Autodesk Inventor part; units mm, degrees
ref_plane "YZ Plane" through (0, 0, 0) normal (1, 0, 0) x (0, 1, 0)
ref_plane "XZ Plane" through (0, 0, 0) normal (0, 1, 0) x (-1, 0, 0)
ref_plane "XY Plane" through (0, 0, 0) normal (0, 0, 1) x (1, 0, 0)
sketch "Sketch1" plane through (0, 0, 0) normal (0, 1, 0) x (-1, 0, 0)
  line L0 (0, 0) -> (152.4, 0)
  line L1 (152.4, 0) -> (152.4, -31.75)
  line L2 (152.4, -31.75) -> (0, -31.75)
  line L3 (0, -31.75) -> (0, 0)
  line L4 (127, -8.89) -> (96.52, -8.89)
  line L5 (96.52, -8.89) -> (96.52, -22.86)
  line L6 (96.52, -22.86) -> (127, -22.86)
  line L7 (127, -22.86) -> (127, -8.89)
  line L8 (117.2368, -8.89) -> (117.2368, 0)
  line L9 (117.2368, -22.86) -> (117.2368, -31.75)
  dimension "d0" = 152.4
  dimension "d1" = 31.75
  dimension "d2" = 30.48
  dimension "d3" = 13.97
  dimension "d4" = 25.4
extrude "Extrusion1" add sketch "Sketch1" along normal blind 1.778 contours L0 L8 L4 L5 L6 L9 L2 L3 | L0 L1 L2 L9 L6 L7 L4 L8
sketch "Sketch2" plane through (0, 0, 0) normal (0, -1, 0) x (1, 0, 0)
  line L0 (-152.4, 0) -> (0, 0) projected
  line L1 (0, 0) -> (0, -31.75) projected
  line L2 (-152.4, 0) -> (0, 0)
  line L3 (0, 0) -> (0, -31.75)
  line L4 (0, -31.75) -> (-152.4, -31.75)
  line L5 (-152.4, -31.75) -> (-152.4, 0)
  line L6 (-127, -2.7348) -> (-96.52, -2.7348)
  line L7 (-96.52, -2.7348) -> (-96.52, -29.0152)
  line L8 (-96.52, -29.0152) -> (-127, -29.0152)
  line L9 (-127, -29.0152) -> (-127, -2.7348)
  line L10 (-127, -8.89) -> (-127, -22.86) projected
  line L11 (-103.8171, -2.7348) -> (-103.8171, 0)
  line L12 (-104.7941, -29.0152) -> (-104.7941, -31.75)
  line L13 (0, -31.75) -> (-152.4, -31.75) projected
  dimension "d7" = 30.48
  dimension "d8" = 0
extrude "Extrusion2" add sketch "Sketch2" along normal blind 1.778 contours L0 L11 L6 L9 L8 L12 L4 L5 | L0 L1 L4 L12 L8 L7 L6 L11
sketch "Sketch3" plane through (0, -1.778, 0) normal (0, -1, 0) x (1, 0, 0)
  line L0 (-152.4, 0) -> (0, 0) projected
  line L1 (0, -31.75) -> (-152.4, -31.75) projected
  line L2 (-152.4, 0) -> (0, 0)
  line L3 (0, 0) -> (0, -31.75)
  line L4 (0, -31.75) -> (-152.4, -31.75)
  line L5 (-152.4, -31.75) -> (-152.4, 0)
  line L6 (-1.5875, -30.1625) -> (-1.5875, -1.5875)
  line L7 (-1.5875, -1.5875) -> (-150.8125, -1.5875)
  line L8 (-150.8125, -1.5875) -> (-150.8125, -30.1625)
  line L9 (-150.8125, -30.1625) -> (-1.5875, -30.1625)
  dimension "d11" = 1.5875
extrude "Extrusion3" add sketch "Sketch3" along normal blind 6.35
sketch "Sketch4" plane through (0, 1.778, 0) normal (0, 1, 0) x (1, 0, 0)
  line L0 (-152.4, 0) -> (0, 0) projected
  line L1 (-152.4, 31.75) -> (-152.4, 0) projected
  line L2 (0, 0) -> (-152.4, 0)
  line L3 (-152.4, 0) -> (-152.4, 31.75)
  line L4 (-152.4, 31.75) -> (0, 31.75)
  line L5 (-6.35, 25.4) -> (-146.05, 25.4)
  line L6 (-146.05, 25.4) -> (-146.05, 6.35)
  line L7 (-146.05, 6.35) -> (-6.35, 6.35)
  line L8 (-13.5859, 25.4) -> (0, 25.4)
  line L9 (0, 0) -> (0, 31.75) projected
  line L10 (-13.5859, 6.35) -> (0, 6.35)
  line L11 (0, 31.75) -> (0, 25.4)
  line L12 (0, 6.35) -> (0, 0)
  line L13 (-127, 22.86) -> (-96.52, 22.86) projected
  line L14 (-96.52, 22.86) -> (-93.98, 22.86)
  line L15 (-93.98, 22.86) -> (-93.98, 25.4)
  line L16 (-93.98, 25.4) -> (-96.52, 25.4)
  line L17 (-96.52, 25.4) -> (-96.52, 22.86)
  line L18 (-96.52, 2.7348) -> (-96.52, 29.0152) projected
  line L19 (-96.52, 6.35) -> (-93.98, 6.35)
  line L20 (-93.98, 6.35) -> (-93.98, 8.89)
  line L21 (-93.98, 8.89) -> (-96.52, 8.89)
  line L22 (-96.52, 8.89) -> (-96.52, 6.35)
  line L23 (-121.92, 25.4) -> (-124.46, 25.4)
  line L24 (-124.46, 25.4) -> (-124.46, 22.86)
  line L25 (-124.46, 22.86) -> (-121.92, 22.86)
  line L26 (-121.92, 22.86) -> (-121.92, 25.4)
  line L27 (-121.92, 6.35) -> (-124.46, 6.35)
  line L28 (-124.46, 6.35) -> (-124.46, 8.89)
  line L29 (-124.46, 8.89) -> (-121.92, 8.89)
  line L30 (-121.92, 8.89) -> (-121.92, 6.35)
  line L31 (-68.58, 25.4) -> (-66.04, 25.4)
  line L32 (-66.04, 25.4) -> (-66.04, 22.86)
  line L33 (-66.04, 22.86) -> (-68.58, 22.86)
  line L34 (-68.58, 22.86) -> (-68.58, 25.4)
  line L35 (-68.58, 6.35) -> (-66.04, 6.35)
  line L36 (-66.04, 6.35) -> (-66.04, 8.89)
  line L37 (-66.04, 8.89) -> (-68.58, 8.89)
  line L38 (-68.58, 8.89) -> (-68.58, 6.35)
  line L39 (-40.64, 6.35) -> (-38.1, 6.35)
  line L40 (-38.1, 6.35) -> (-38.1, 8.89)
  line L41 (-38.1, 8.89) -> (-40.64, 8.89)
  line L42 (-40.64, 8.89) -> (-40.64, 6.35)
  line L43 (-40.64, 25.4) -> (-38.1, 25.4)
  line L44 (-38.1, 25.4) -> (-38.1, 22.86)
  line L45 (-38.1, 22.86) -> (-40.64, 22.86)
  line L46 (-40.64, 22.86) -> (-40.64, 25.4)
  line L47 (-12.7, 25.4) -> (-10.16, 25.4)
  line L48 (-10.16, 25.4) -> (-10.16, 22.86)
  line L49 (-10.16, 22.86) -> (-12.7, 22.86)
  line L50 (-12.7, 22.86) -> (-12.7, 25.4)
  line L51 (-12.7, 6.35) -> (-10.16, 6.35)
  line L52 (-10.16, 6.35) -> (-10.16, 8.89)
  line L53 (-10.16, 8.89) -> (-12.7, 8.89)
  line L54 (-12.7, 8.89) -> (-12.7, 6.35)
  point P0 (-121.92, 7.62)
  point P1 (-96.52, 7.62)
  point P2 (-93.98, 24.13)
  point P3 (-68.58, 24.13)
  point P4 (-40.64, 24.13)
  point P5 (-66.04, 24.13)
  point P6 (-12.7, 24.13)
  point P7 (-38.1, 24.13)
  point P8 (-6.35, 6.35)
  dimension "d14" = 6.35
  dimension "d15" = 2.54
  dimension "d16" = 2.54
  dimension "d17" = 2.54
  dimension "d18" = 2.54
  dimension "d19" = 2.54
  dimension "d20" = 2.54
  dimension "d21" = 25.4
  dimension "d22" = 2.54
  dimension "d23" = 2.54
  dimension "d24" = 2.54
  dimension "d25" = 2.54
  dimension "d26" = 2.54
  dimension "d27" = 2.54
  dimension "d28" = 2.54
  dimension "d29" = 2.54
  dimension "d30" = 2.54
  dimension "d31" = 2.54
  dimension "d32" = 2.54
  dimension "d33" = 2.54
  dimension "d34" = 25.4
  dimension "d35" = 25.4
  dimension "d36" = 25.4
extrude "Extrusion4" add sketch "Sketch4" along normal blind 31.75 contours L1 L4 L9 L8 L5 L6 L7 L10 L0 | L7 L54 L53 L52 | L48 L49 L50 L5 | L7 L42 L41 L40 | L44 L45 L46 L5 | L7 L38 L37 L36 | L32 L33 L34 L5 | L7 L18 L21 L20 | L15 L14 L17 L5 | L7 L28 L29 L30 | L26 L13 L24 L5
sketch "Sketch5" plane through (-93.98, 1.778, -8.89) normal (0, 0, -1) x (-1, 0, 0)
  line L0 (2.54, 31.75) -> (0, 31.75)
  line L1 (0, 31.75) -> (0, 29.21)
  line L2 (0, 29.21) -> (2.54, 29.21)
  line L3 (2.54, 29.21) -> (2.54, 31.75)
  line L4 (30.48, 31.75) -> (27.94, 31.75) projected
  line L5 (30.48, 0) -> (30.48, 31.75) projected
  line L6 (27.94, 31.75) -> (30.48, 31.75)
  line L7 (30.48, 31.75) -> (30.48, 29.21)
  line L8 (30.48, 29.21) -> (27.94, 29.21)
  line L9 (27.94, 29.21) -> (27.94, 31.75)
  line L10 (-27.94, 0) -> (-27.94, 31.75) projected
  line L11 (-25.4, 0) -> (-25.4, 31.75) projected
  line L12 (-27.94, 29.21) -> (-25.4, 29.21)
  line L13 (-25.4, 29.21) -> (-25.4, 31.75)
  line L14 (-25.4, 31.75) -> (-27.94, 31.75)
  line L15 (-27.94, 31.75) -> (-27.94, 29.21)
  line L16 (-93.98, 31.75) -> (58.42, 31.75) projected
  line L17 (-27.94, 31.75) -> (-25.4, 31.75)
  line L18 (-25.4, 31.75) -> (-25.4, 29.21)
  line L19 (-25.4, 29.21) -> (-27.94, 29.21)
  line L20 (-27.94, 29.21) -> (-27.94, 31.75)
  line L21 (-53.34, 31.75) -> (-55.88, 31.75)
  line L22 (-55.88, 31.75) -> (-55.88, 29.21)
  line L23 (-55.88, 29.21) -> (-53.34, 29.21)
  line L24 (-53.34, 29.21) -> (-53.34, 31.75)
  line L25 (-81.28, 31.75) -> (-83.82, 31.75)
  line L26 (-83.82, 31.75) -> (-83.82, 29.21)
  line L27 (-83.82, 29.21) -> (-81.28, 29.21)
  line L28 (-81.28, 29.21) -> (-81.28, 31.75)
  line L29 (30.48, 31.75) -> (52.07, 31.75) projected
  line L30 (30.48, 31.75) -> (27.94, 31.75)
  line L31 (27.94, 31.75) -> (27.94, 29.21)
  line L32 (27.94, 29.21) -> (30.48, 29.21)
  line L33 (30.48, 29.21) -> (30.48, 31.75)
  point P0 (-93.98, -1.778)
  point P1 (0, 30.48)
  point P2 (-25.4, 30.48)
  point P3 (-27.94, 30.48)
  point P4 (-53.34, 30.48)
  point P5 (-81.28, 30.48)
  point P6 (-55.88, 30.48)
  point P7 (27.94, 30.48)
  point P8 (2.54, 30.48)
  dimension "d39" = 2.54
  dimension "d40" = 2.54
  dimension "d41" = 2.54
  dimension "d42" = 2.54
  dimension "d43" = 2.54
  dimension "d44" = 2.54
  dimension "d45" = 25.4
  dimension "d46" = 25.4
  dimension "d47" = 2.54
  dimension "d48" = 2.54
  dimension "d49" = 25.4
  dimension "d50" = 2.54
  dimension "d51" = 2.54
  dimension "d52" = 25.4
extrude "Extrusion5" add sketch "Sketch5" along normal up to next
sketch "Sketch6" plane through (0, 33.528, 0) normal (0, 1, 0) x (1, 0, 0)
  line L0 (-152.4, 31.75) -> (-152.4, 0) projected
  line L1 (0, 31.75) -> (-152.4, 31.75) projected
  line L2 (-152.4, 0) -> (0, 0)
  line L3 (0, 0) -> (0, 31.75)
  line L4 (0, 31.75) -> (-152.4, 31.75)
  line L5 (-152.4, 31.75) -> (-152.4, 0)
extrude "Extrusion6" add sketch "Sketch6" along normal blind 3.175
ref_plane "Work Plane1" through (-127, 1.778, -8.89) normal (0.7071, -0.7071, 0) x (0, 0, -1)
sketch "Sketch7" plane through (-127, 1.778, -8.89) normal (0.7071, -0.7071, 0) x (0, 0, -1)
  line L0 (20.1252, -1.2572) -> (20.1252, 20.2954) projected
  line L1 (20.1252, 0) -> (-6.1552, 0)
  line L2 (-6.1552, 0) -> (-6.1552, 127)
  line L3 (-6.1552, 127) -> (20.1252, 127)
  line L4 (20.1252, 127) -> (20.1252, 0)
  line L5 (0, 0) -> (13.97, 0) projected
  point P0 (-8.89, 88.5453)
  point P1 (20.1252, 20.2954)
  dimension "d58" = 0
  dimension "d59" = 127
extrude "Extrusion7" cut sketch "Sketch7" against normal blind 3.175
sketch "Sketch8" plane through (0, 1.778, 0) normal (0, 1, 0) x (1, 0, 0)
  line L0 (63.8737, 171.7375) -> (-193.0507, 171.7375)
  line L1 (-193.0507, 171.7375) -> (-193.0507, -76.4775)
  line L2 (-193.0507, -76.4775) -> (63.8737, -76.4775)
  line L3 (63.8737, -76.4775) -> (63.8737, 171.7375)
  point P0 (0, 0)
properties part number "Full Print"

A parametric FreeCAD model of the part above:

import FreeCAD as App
import Part
import Sketcher

V = App.Vector
Q = App.Units.Quantity

doc = App.newDocument("Part")
params = doc.addObject("Spreadsheet::Sheet", "Params")
for row, (alias, value) in enumerate([
    ("sketch1_width", "6 in"),
    ("sketch1_width2", "1.2 in"),
    ("sketch1_height", "1.25 in"),
    ("sketch1_height2", "0.55 in"),
    ("pad1_length", "0.07 in"),
    ("sketch2_width", "1.2 in"),
    ("sketch2_width2", "6 in"),
    ("sketch2_height", "1.25 in"),
    ("pad2_length", "0.07 in"),
    ("sketch3_width", "6 in"),
    ("sketch3_height", "1.25 in"),
    ("pad3_length", "0.25 in"),
    ("sketch4_width", "1 in"),
    ("sketch4_width2", "0.1 in"),
    ("sketch4_height", "0.25 in"),
    ("sketch4_width3", "6 in"),
    ("sketch4_width4", "0.4 in"),
    ("pad4_length", "1.25 in"),
    ("sketch5_width", "0.1 in"),
    ("sketch6_width", "6 in"),
    ("sketch6_height", "1.25 in"),
    ("pad6_length", "0.125 in"),
    ("sketch7_height", "5 in"),
    ("pocket1_length", "0.125 in"),
], start=1):
    params.set(f"A{row}", alias)
    params.set(f"B{row}", "=" + value)
    params.setAlias(f"B{row}", alias)

body = doc.addObject("PartDesign::Body", "Body")

# Sketch on XZ plane
sketch1 = doc.addObject("Sketcher::SketchObject", "Sketch")
body.addObject(sketch1)
sketch1.AttachmentSupport = (doc.XZ_Plane, [""])
sketch1.MapMode = "FlatFace"
sketch1.addGeometry([
    Part.LineSegment(V(0, 0, 0), V(0, -31.75, 0)),  # 0
    Part.LineSegment(V(0, -31.75, 0), V(-152.4, -31.75, 0)),  # 1
    Part.LineSegment(V(-152.4, -31.75, 0), V(-152.4, 0, 0)),  # 2
    Part.LineSegment(V(-152.4, 0, 0), V(0, 0, 0)),  # 3
    Part.LineSegment(V(-96.52, -8.89, 0), V(-127, -8.89, 0)),  # 4
    Part.LineSegment(V(-127, -8.89, 0), V(-127, -22.86, 0)),  # 5
    Part.LineSegment(V(-127, -22.86, 0), V(-96.52, -22.86, 0)),  # 6
    Part.LineSegment(V(-96.52, -22.86, 0), V(-96.52, -8.89, 0)),  # 7
], False)
sketch1.addConstraint([
    Sketcher.Constraint("Coincident", 0, 2, 1, 1),
    Sketcher.Constraint("Coincident", 1, 2, 2, 1),
    Sketcher.Constraint("Coincident", 2, 2, 3, 1),
    Sketcher.Constraint("Coincident", 3, 2, 0, 1),
    Sketcher.Constraint("Coincident", 4, 2, 5, 1),
    Sketcher.Constraint("Coincident", 5, 2, 6, 1),
    Sketcher.Constraint("Coincident", 6, 2, 7, 1),
    Sketcher.Constraint("Coincident", 7, 2, 4, 1),
    Sketcher.Constraint("Vertical", 0),
    Sketcher.Constraint("Horizontal", 1),
    Sketcher.Constraint("Vertical", 2),
    Sketcher.Constraint("Horizontal", 3),
    Sketcher.Constraint("Horizontal", 4),
    Sketcher.Constraint("Vertical", 5),
    Sketcher.Constraint("Horizontal", 6),
    Sketcher.Constraint("Vertical", 7),
    Sketcher.Constraint("Coincident", 3, 2, -1, 1),
    Sketcher.Constraint("DistanceX", 1, 2, 1, 1, Q("6 in")),
    Sketcher.Constraint("DistanceX", 4, 2, 4, 1, Q("1.2 in")),
    Sketcher.Constraint("DistanceX", 2, 2, 4, 2, Q("1 in")),
    Sketcher.Constraint("DistanceY", 0, 2, 0, 1, Q("1.25 in")),
    Sketcher.Constraint("DistanceY", 5, 2, 5, 1, Q("0.55 in")),
    Sketcher.Constraint("DistanceY", 5, 2, -1, 1, Q("0.9 in")),
])
sketch1.setExpression("Constraints[17]", "Params.sketch1_width")
sketch1.setExpression("Constraints[18]", "Params.sketch1_width2")
sketch1.setExpression("Constraints[20]", "Params.sketch1_height")
sketch1.setExpression("Constraints[21]", "Params.sketch1_height2")
pad1 = doc.addObject("PartDesign::Pad", "Pad")
body.addObject(pad1)
pad1.Profile = sketch1
pad1.setExpression("Length", "Params.pad1_length")
pad1.Reversed = True

# Sketch on XZ plane
sketch2 = doc.addObject("Sketcher::SketchObject", "Sketch001")
body.addObject(sketch2)
sketch2.AttachmentSupport = (doc.XZ_Plane, [""])
sketch2.MapMode = "FlatFace"
sketch2.addGeometry([
    Part.LineSegment(V(-152.4, 0, 0), V(-152.4, -31.75, 0)),  # 0
    Part.LineSegment(V(-152.4, -31.75, 0), V(0, -31.75, 0)),  # 1
    Part.LineSegment(V(0, -31.75, 0), V(0, 0, 0)),  # 2
    Part.LineSegment(V(0, 0, 0), V(-152.4, 0, 0)),  # 3
    Part.LineSegment(V(-127, -2.7348, 0), V(-96.52, -2.7348, 0)),  # 4
    Part.LineSegment(V(-96.52, -2.7348, 0), V(-96.52, -29.0152, 0)),  # 5
    Part.LineSegment(V(-96.52, -29.0152, 0), V(-127, -29.0152, 0)),  # 6
    Part.LineSegment(V(-127, -29.0152, 0), V(-127, -2.7348, 0)),  # 7
], False)
sketch2.addConstraint([
    Sketcher.Constraint("Coincident", 0, 2, 1, 1),
    Sketcher.Constraint("Coincident", 1, 2, 2, 1),
    Sketcher.Constraint("Coincident", 2, 2, 3, 1),
    Sketcher.Constraint("Coincident", 3, 2, 0, 1),
    Sketcher.Constraint("Coincident", 4, 2, 5, 1),
    Sketcher.Constraint("Coincident", 5, 2, 6, 1),
    Sketcher.Constraint("Coincident", 6, 2, 7, 1),
    Sketcher.Constraint("Coincident", 7, 2, 4, 1),
    Sketcher.Constraint("Vertical", 0),
    Sketcher.Constraint("Horizontal", 1),
    Sketcher.Constraint("Vertical", 2),
    Sketcher.Constraint("Horizontal", 3),
    Sketcher.Constraint("Horizontal", 4),
    Sketcher.Constraint("Vertical", 5),
    Sketcher.Constraint("Horizontal", 6),
    Sketcher.Constraint("Vertical", 7),
    Sketcher.Constraint("Coincident", 2, 2, -1, 1),
    Sketcher.Constraint("DistanceX", 4, 1, 4, 2, Q("1.2 in")),
    Sketcher.Constraint("DistanceX", 1, 1, 1, 2, Q("6 in")),
    Sketcher.Constraint("DistanceX", 6, 2, -1, 1, Q("5 in")),
    Sketcher.Constraint("DistanceY", 0, 2, 0, 1, Q("1.25 in")),
    Sketcher.Constraint("DistanceY", 5, 2, 5, 1, 26.2804),
    Sketcher.Constraint("DistanceY", 4, 2, -1, 1, 2.7348),
])
sketch2.setExpression("Constraints[17]", "Params.sketch2_width")
sketch2.setExpression("Constraints[18]", "Params.sketch2_width2")
sketch2.setExpression("Constraints[20]", "Params.sketch2_height")
pad2 = doc.addObject("PartDesign::Pad", "Pad001")
body.addObject(pad2)
pad2.Profile = sketch2
pad2.setExpression("Length", "Params.pad2_length")

# Sketch on XZ plane
sketch3 = doc.addObject("Sketcher::SketchObject", "Sketch002")
body.addObject(sketch3)
sketch3.AttachmentSupport = (doc.XZ_Plane, [""])
sketch3.MapMode = "FlatFace"
sketch3.AttachmentOffset = App.Placement(V(0, 0, 0.07 * 25.4), App.Rotation())
sketch3.addGeometry([
    Part.LineSegment(V(0, 0, 0), V(-152.4, 0, 0)),  # 0
    Part.LineSegment(V(-152.4, 0, 0), V(-152.4, -31.75, 0)),  # 1
    Part.LineSegment(V(-152.4, -31.75, 0), V(0, -31.75, 0)),  # 2
    Part.LineSegment(V(0, -31.75, 0), V(0, 0, 0)),  # 3
    Part.LineSegment(V(-1.5875, -1.5875, 0), V(-1.5875, -30.1625, 0)),  # 4
    Part.LineSegment(V(-1.5875, -30.1625, 0), V(-150.8125, -30.1625, 0)),  # 5
    Part.LineSegment(V(-150.8125, -30.1625, 0), V(-150.8125, -1.5875, 0)),  # 6
    Part.LineSegment(V(-150.8125, -1.5875, 0), V(-1.5875, -1.5875, 0)),  # 7
], False)
sketch3.addConstraint([
    Sketcher.Constraint("Coincident", 0, 2, 1, 1),
    Sketcher.Constraint("Coincident", 1, 2, 2, 1),
    Sketcher.Constraint("Coincident", 2, 2, 3, 1),
    Sketcher.Constraint("Coincident", 3, 2, 0, 1),
    Sketcher.Constraint("Coincident", 4, 2, 5, 1),
    Sketcher.Constraint("Coincident", 5, 2, 6, 1),
    Sketcher.Constraint("Coincident", 6, 2, 7, 1),
    Sketcher.Constraint("Coincident", 7, 2, 4, 1),
    Sketcher.Constraint("Horizontal", 0),
    Sketcher.Constraint("Vertical", 1),
    Sketcher.Constraint("Horizontal", 2),
    Sketcher.Constraint("Vertical", 3),
    Sketcher.Constraint("Vertical", 4),
    Sketcher.Constraint("Horizontal", 5),
    Sketcher.Constraint("Vertical", 6),
    Sketcher.Constraint("Horizontal", 7),
    Sketcher.Constraint("Coincident", 3, 2, -1, 1),
    Sketcher.Constraint("DistanceX", 0, 2, 0, 1, Q("6 in")),
    Sketcher.Constraint("DistanceX", 4, 2, -1, 1, Q("0.0625 in")),
    Sketcher.Constraint("DistanceY", 6, 2, -1, 1, Q("0.0625 in")),
    Sketcher.Constraint("DistanceY", 2, 2, 4, 2, Q("0.0625 in")),
    Sketcher.Constraint("DistanceX", 1, 2, 5, 2, Q("0.0625 in")),
    Sketcher.Constraint("DistanceY", 1, 2, 1, 1, Q("1.25 in")),
])
sketch3.setExpression("Constraints[17]", "Params.sketch3_width")
sketch3.setExpression("Constraints[22]", "Params.sketch3_height")
pad3 = doc.addObject("PartDesign::Pad", "Pad002")
body.addObject(pad3)
pad3.Profile = sketch3
pad3.setExpression("Length", "Params.pad3_length")

# Sketch on XZ plane
sketch4 = doc.addObject("Sketcher::SketchObject", "Sketch003")
body.addObject(sketch4)
sketch4.AttachmentSupport = (doc.XZ_Plane, [""])
sketch4.MapMode = "FlatFace"
sketch4.AttachmentOffset = App.Placement(V(0, 0, -0.07 * 25.4), App.Rotation())
sketch4.addGeometry([
    Part.LineSegment(V(-152.4, -31.75, 0), V(-152.4, 0, 0)),  # 0
    Part.LineSegment(V(-152.4, 0, 0), V(0, 0, 0)),  # 1
    Part.LineSegment(V(0, 0, 0), V(0, -6.35, 0)),  # 2
    Part.LineSegment(V(0, -6.35, 0), V(-10.16, -6.35, 0)),  # 3
    Part.LineSegment(V(-10.16, -6.35, 0), V(-10.16, -8.89, 0)),  # 4
    Part.LineSegment(V(-10.16, -8.89, 0), V(-12.7, -8.89, 0)),  # 5
    Part.LineSegment(V(-12.7, -8.89, 0), V(-12.7, -6.35, 0)),  # 6
    Part.LineSegment(V(-12.7, -6.35, 0), V(-38.1, -6.35, 0)),  # 7
    Part.LineSegment(V(-38.1, -6.35, 0), V(-38.1, -8.89, 0)),  # 8
    Part.LineSegment(V(-38.1, -8.89, 0), V(-40.64, -8.89, 0)),  # 9
    Part.LineSegment(V(-40.64, -8.89, 0), V(-40.64, -6.35, 0)),  # 10
    Part.LineSegment(V(-40.64, -6.35, 0), V(-66.04, -6.35, 0)),  # 11
    Part.LineSegment(V(-66.04, -6.35, 0), V(-66.04, -8.89, 0)),  # 12
    Part.LineSegment(V(-66.04, -8.89, 0), V(-68.58, -8.89, 0)),  # 13
    Part.LineSegment(V(-68.58, -8.89, 0), V(-68.58, -6.35, 0)),  # 14
    Part.LineSegment(V(-68.58, -6.35, 0), V(-93.98, -6.35, 0)),  # 15
    Part.LineSegment(V(-93.98, -6.35, 0), V(-93.98, -8.89, 0)),  # 16
    Part.LineSegment(V(-93.98, -8.89, 0), V(-96.52, -8.89, 0)),  # 17
    Part.LineSegment(V(-96.52, -8.89, 0), V(-96.52, -6.35, 0)),  # 18
    Part.LineSegment(V(-96.52, -6.35, 0), V(-121.92, -6.35, 0)),  # 19
    Part.LineSegment(V(-121.92, -6.35, 0), V(-121.92, -8.89, 0)),  # 20
    Part.LineSegment(V(-121.92, -8.89, 0), V(-124.46, -8.89, 0)),  # 21
    Part.LineSegment(V(-124.46, -8.89, 0), V(-124.46, -6.35, 0)),  # 22
    Part.LineSegment(V(-124.46, -6.35, 0), V(-146.05, -6.35, 0)),  # 23
    Part.LineSegment(V(-146.05, -6.35, 0), V(-146.05, -25.4, 0)),  # 24
    Part.LineSegment(V(-146.05, -25.4, 0), V(-124.46, -25.4, 0)),  # 25
    Part.LineSegment(V(-124.46, -25.4, 0), V(-124.46, -22.86, 0)),  # 26
    Part.LineSegment(V(-124.46, -22.86, 0), V(-121.92, -22.86, 0)),  # 27
    Part.LineSegment(V(-121.92, -22.86, 0), V(-121.92, -25.4, 0)),  # 28
    Part.LineSegment(V(-121.92, -25.4, 0), V(-96.52, -25.4, 0)),  # 29
    Part.LineSegment(V(-96.52, -25.4, 0), V(-96.52, -22.86, 0)),  # 30
    Part.LineSegment(V(-96.52, -22.86, 0), V(-93.98, -22.86, 0)),  # 31
    Part.LineSegment(V(-93.98, -22.86, 0), V(-93.98, -25.4, 0)),  # 32
    Part.LineSegment(V(-93.98, -25.4, 0), V(-68.58, -25.4, 0)),  # 33
    Part.LineSegment(V(-68.58, -25.4, 0), V(-68.58, -22.86, 0)),  # 34
    Part.LineSegment(V(-68.58, -22.86, 0), V(-66.04, -22.86, 0)),  # 35
    Part.LineSegment(V(-66.04, -22.86, 0), V(-66.04, -25.4, 0)),  # 36
    Part.LineSegment(V(-66.04, -25.4, 0), V(-40.64, -25.4, 0)),  # 37
    Part.LineSegment(V(-40.64, -25.4, 0), V(-40.64, -22.86, 0)),  # 38
    Part.LineSegment(V(-40.64, -22.86, 0), V(-38.1, -22.86, 0)),  # 39
    Part.LineSegment(V(-38.1, -22.86, 0), V(-38.1, -25.4, 0)),  # 40
    Part.LineSegment(V(-38.1, -25.4, 0), V(-12.7, -25.4, 0)),  # 41
    Part.LineSegment(V(-12.7, -25.4, 0), V(-12.7, -22.86, 0)),  # 42
    Part.LineSegment(V(-12.7, -22.86, 0), V(-10.16, -22.86, 0)),  # 43
    Part.LineSegment(V(-10.16, -22.86, 0), V(-10.16, -25.4, 0)),  # 44
    Part.LineSegment(V(-10.16, -25.4, 0), V(0, -25.4, 0)),  # 45
    Part.LineSegment(V(0, -25.4, 0), V(0, -31.75, 0)),  # 46
    Part.LineSegment(V(0, -31.75, 0), V(-152.4, -31.75, 0)),  # 47
], False)
sketch4.addConstraint([
    Sketcher.Constraint("Coincident", 0, 2, 1, 1),
    Sketcher.Constraint("Coincident", 1, 2, 2, 1),
    Sketcher.Constraint("Coincident", 2, 2, 3, 1),
    Sketcher.Constraint("Coincident", 3, 2, 4, 1),
    Sketcher.Constraint("Coincident", 4, 2, 5, 1),
    Sketcher.Constraint("Coincident", 5, 2, 6, 1),
    Sketcher.Constraint("Coincident", 6, 2, 7, 1),
    Sketcher.Constraint("Coincident", 7, 2, 8, 1),
    Sketcher.Constraint("Coincident", 8, 2, 9, 1),
    Sketcher.Constraint("Coincident", 9, 2, 10, 1),
    Sketcher.Constraint("Coincident", 10, 2, 11, 1),
    Sketcher.Constraint("Coincident", 11, 2, 12, 1),
    Sketcher.Constraint("Coincident", 12, 2, 13, 1),
    Sketcher.Constraint("Coincident", 13, 2, 14, 1),
    Sketcher.Constraint("Coincident", 14, 2, 15, 1),
    Sketcher.Constraint("Coincident", 15, 2, 16, 1),
    Sketcher.Constraint("Coincident", 16, 2, 17, 1),
    Sketcher.Constraint("Coincident", 17, 2, 18, 1),
    Sketcher.Constraint("Coincident", 18, 2, 19, 1),
    Sketcher.Constraint("Coincident", 19, 2, 20, 1),
    Sketcher.Constraint("Coincident", 20, 2, 21, 1),
    Sketcher.Constraint("Coincident", 21, 2, 22, 1),
    Sketcher.Constraint("Coincident", 22, 2, 23, 1),
    Sketcher.Constraint("Coincident", 23, 2, 24, 1),
    Sketcher.Constraint("Coincident", 24, 2, 25, 1),
    Sketcher.Constraint("Coincident", 25, 2, 26, 1),
    Sketcher.Constraint("Coincident", 26, 2, 27, 1),
    Sketcher.Constraint("Coincident", 27, 2, 28, 1),
    Sketcher.Constraint("Coincident", 28, 2, 29, 1),
    Sketcher.Constraint("Coincident", 29, 2, 30, 1),
    Sketcher.Constraint("Coincident", 30, 2, 31, 1),
    Sketcher.Constraint("Coincident", 31, 2, 32, 1),
    Sketcher.Constraint("Coincident", 32, 2, 33, 1),
    Sketcher.Constraint("Coincident", 33, 2, 34, 1),
    Sketcher.Constraint("Coincident", 34, 2, 35, 1),
    Sketcher.Constraint("Coincident", 35, 2, 36, 1),
    Sketcher.Constraint("Coincident", 36, 2, 37, 1),
    Sketcher.Constraint("Coincident", 37, 2, 38, 1),
    Sketcher.Constraint("Coincident", 38, 2, 39, 1),
    Sketcher.Constraint("Coincident", 39, 2, 40, 1),
    Sketcher.Constraint("Coincident", 40, 2, 41, 1),
    Sketcher.Constraint("Coincident", 41, 2, 42, 1),
    Sketcher.Constraint("Coincident", 42, 2, 43, 1),
    Sketcher.Constraint("Coincident", 43, 2, 44, 1),
    Sketcher.Constraint("Coincident", 44, 2, 45, 1),
    Sketcher.Constraint("Coincident", 45, 2, 46, 1),
    Sketcher.Constraint("Coincident", 46, 2, 47, 1),
    Sketcher.Constraint("Coincident", 47, 2, 0, 1),
    Sketcher.Constraint("Vertical", 0),
    Sketcher.Constraint("Horizontal", 1),
    Sketcher.Constraint("Vertical", 2),
    Sketcher.Constraint("Horizontal", 3),
    Sketcher.Constraint("Vertical", 4),
    Sketcher.Constraint("Horizontal", 5),
    Sketcher.Constraint("Vertical", 6),
    Sketcher.Constraint("Horizontal", 7),
    Sketcher.Constraint("Vertical", 8),
    Sketcher.Constraint("Horizontal", 9),
    Sketcher.Constraint("Vertical", 10),
    Sketcher.Constraint("Horizontal", 11),
    Sketcher.Constraint("Vertical", 12),
    Sketcher.Constraint("Horizontal", 13),
    Sketcher.Constraint("Vertical", 14),
    Sketcher.Constraint("Horizontal", 15),
    Sketcher.Constraint("Vertical", 16),
    Sketcher.Constraint("Horizontal", 17),
    Sketcher.Constraint("Vertical", 18),
    Sketcher.Constraint("Horizontal", 19),
    Sketcher.Constraint("Vertical", 20),
    Sketcher.Constraint("Horizontal", 21),
    Sketcher.Constraint("Vertical", 22),
    Sketcher.Constraint("Horizontal", 23),
    Sketcher.Constraint("Vertical", 24),
    Sketcher.Constraint("Horizontal", 25),
    Sketcher.Constraint("Vertical", 26),
    Sketcher.Constraint("Horizontal", 27),
    Sketcher.Constraint("Vertical", 28),
    Sketcher.Constraint("Horizontal", 29),
    Sketcher.Constraint("Vertical", 30),
    Sketcher.Constraint("Horizontal", 31),
    Sketcher.Constraint("Vertical", 32),
    Sketcher.Constraint("Horizontal", 33),
    Sketcher.Constraint("Vertical", 34),
    Sketcher.Constraint("Horizontal", 35),
    Sketcher.Constraint("Vertical", 36),
    Sketcher.Constraint("Horizontal", 37),
    Sketcher.Constraint("Vertical", 38),
    Sketcher.Constraint("Horizontal", 39),
    Sketcher.Constraint("Vertical", 40),
    Sketcher.Constraint("Horizontal", 41),
    Sketcher.Constraint("Vertical", 42),
    Sketcher.Constraint("Horizontal", 43),
    Sketcher.Constraint("Vertical", 44),
    Sketcher.Constraint("Horizontal", 45),
    Sketcher.Constraint("Vertical", 46),
    Sketcher.Constraint("Horizontal", 47),
    Sketcher.Constraint("Coincident", 1, 2, -1, 1),
    Sketcher.Constraint("PointOnObject", 45, 2, -2),
    Sketcher.Constraint("Horizontal", 3, 2, 6, 2),
    Sketcher.Constraint("Horizontal", 5, 2, 8, 2),
    Sketcher.Constraint("Horizontal", 7, 2, 10, 2),
    Sketcher.Constraint("Horizontal", 9, 2, 12, 2),
    Sketcher.Constraint("Horizontal", 11, 2, 14, 2),
    Sketcher.Constraint("Horizontal", 13, 2, 16, 2),
    Sketcher.Constraint("Horizontal", 15, 2, 18, 2),
    Sketcher.Constraint("Horizontal", 17, 2, 20, 2),
    Sketcher.Constraint("Horizontal", 19, 2, 22, 2),
    Sketcher.Constraint("Horizontal", 25, 2, 28, 2),
    Sketcher.Constraint("Horizontal", 27, 2, 30, 2),
    Sketcher.Constraint("Horizontal", 29, 2, 32, 2),
    Sketcher.Constraint("Horizontal", 31, 2, 34, 2),
    Sketcher.Constraint("Horizontal", 33, 2, 36, 2),
    Sketcher.Constraint("Horizontal", 35, 2, 38, 2),
    Sketcher.Constraint("Horizontal", 37, 2, 40, 2),
    Sketcher.Constraint("Horizontal", 39, 2, 42, 2),
    Sketcher.Constraint("Horizontal", 41, 2, 44, 2),
    Sketcher.Constraint("Vertical", 22, 2, 25, 2),
    Sketcher.Constraint("Vertical", 20, 2, 27, 2),
    Sketcher.Constraint("Vertical", 18, 2, 29, 2),
    Sketcher.Constraint("Vertical", 16, 2, 31, 2),
    Sketcher.Constraint("Vertical", 14, 2, 33, 2),
    Sketcher.Constraint("Vertical", 12, 2, 35, 2),
    Sketcher.Constraint("Vertical", 10, 2, 37, 2),
    Sketcher.Constraint("Vertical", 8, 2, 39, 2),
    Sketcher.Constraint("Vertical", 6, 2, 41, 2),
    Sketcher.Constraint("Vertical", 4, 2, 43, 2),
    Sketcher.Constraint("Equal", 5, 9),
    Sketcher.Constraint("Equal", 7, 11),
    Sketcher.Constraint("Equal", 9, 13),
    Sketcher.Constraint("Equal", 11, 15),
    Sketcher.Constraint("Equal", 13, 17),
    Sketcher.Constraint("Equal", 15, 19),
    Sketcher.Constraint("Equal", 17, 21),
    Sketcher.Constraint("Equal", 43, 4),
    Sketcher.Constraint("Equal", 22, 26),
    Sketcher.Constraint("Equal", 2, 46),
    Sketcher.Constraint("DistanceX", 7, 2, 7, 1, Q("1 in")),
    Sketcher.Constraint("DistanceX", 5, 2, 5, 1, Q("0.1 in")),
    Sketcher.Constraint("DistanceY", 24, 2, -1, 1, Q("1 in")),
    Sketcher.Constraint("DistanceY", 2, 2, 2, 1, Q("0.25 in")),
    Sketcher.Constraint("DistanceX", 1, 1, 1, 2, Q("6 in")),
    Sketcher.Constraint("DistanceX", 0, 2, 23, 2, Q("0.25 in")),
    Sketcher.Constraint("DistanceX", 3, 2, 3, 1, Q("0.4 in")),
])
sketch4.setExpression("Constraints[136]", "Params.sketch4_width")
sketch4.setExpression("Constraints[137]", "Params.sketch4_width2")
sketch4.setExpression("Constraints[139]", "Params.sketch4_height")
sketch4.setExpression("Constraints[140]", "Params.sketch4_width3")
sketch4.setExpression("Constraints[142]", "Params.sketch4_width4")
pad4 = doc.addObject("PartDesign::Pad", "Pad003")
body.addObject(pad4)
pad4.Profile = sketch4
pad4.setExpression("Length", "Params.pad4_length")
pad4.Reversed = True

# Sketch on XY plane
sketch5 = doc.addObject("Sketcher::SketchObject", "Sketch004")
body.addObject(sketch5)
sketch5.AttachmentSupport = (doc.XY_Plane, [""])
sketch5.MapMode = "FlatFace"
sketch5.AttachmentOffset = App.Placement(V(0, 0, -0.35 * 25.4), App.Rotation())
sketch5.addGeometry([
    Part.LineSegment(V(-96.52, 30.988, 0), V(-96.52, 33.528, 0)),  # 0
    Part.LineSegment(V(-96.52, 33.528, 0), V(-93.98, 33.528, 0)),  # 1
    Part.LineSegment(V(-93.98, 33.528, 0), V(-93.98, 30.988, 0)),  # 2
    Part.LineSegment(V(-93.98, 30.988, 0), V(-96.52, 30.988, 0)),  # 3
    Part.LineSegment(V(-12.7, 30.988, 0), V(-12.7, 33.528, 0)),  # 4
    Part.LineSegment(V(-12.7, 33.528, 0), V(-10.16, 33.528, 0)),  # 5
    Part.LineSegment(V(-10.16, 33.528, 0), V(-10.16, 30.988, 0)),  # 6
    Part.LineSegment(V(-10.16, 30.988, 0), V(-12.7, 30.988, 0)),  # 7
    Part.LineSegment(V(-40.64, 30.988, 0), V(-40.64, 33.528, 0)),  # 8
    Part.LineSegment(V(-40.64, 33.528, 0), V(-38.1, 33.528, 0)),  # 9
    Part.LineSegment(V(-38.1, 33.528, 0), V(-38.1, 30.988, 0)),  # 10
    Part.LineSegment(V(-38.1, 30.988, 0), V(-40.64, 30.988, 0)),  # 11
    Part.LineSegment(V(-68.58, 30.988, 0), V(-68.58, 33.528, 0)),  # 12
    Part.LineSegment(V(-68.58, 33.528, 0), V(-66.04, 33.528, 0)),  # 13
    Part.LineSegment(V(-66.04, 33.528, 0), V(-66.04, 30.988, 0)),  # 14
    Part.LineSegment(V(-66.04, 30.988, 0), V(-68.58, 30.988, 0)),  # 15
    Part.LineSegment(V(-124.46, 33.528, 0), V(-121.92, 33.528, 0)),  # 16
    Part.LineSegment(V(-121.92, 33.528, 0), V(-121.92, 30.988, 0)),  # 17
    Part.LineSegment(V(-121.92, 30.988, 0), V(-124.46, 30.988, 0)),  # 18
    Part.LineSegment(V(-124.46, 30.988, 0), V(-124.46, 33.528, 0)),  # 19
], False)
sketch5.addConstraint([
    Sketcher.Constraint("Coincident", 0, 2, 1, 1),
    Sketcher.Constraint("Coincident", 1, 2, 2, 1),
    Sketcher.Constraint("Coincident", 2, 2, 3, 1),
    Sketcher.Constraint("Coincident", 3, 2, 0, 1),
    Sketcher.Constraint("Coincident", 4, 2, 5, 1),
    Sketcher.Constraint("Coincident", 5, 2, 6, 1),
    Sketcher.Constraint("Coincident", 6, 2, 7, 1),
    Sketcher.Constraint("Coincident", 7, 2, 4, 1),
    Sketcher.Constraint("Coincident", 8, 2, 9, 1),
    Sketcher.Constraint("Coincident", 9, 2, 10, 1),
    Sketcher.Constraint("Coincident", 10, 2, 11, 1),
    Sketcher.Constraint("Coincident", 11, 2, 8, 1),
    Sketcher.Constraint("Coincident", 12, 2, 13, 1),
    Sketcher.Constraint("Coincident", 13, 2, 14, 1),
    Sketcher.Constraint("Coincident", 14, 2, 15, 1),
    Sketcher.Constraint("Coincident", 15, 2, 12, 1),
    Sketcher.Constraint("Coincident", 16, 2, 17, 1),
    Sketcher.Constraint("Coincident", 17, 2, 18, 1),
    Sketcher.Constraint("Coincident", 18, 2, 19, 1),
    Sketcher.Constraint("Coincident", 19, 2, 16, 1),
    Sketcher.Constraint("Vertical", 0),
    Sketcher.Constraint("Horizontal", 1),
    Sketcher.Constraint("Vertical", 2),
    Sketcher.Constraint("Horizontal", 3),
    Sketcher.Constraint("Vertical", 4),
    Sketcher.Constraint("Horizontal", 5),
    Sketcher.Constraint("Vertical", 6),
    Sketcher.Constraint("Horizontal", 7),
    Sketcher.Constraint("Vertical", 8),
    Sketcher.Constraint("Horizontal", 9),
    Sketcher.Constraint("Vertical", 10),
    Sketcher.Constraint("Horizontal", 11),
    Sketcher.Constraint("Vertical", 12),
    Sketcher.Constraint("Horizontal", 13),
    Sketcher.Constraint("Vertical", 14),
    Sketcher.Constraint("Horizontal", 15),
    Sketcher.Constraint("Horizontal", 16),
    Sketcher.Constraint("Vertical", 17),
    Sketcher.Constraint("Horizontal", 18),
    Sketcher.Constraint("Vertical", 19),
    Sketcher.Constraint("Horizontal", 1, 2, 4, 2),
    Sketcher.Constraint("Horizontal", 3, 2, 6, 2),
    Sketcher.Constraint("Horizontal", 5, 2, 8, 2),
    Sketcher.Constraint("Horizontal", 7, 2, 10, 2),
    Sketcher.Constraint("Horizontal", 9, 2, 12, 2),
    Sketcher.Constraint("Horizontal", 11, 2, 14, 2),
    Sketcher.Constraint("Horizontal", 13, 2, 16, 2),
    Sketcher.Constraint("Horizontal", 15, 2, 17, 2),
    Sketcher.Constraint("Equal", 3, 5),
    Sketcher.Constraint("Equal", 7, 9),
    Sketcher.Constraint("Equal", 11, 13),
    Sketcher.Constraint("Equal", 15, 16),
    Sketcher.Constraint("Equal", 18, 0),
    Sketcher.Constraint("DistanceX", 1, 1, 1, 2, Q("0.1 in")),
    Sketcher.Constraint("DistanceX", 9, 2, 4, 2, Q("1 in")),
    Sketcher.Constraint("DistanceX", 1, 2, 12, 2, Q("1 in")),
    Sketcher.Constraint("DistanceX", 13, 2, 8, 2, Q("1 in")),
    Sketcher.Constraint("DistanceX", 16, 2, 0, 2, Q("1 in")),
    Sketcher.Constraint("DistanceX", 0, 2, -1, 1, Q("3.8 in")),
    Sketcher.Constraint("DistanceY", -1, 1, 0, 2, Q("1.32 in")),
])
sketch5.setExpression("Constraints[53]", "Params.sketch5_width")
pad5 = doc.addObject("PartDesign::Pad", "Pad004")
body.addObject(pad5)
pad5.Profile = sketch5
pad5.Type = "UpToFirst"
pad5.Reversed = True

# Sketch on XZ plane
sketch6 = doc.addObject("Sketcher::SketchObject", "Sketch005")
body.addObject(sketch6)
sketch6.AttachmentSupport = (doc.XZ_Plane, [""])
sketch6.MapMode = "FlatFace"
sketch6.AttachmentOffset = App.Placement(V(0, 0, -1.32 * 25.4), App.Rotation())
sketch6.addGeometry([
    Part.LineSegment(V(0, -31.75, 0), V(-152.4, -31.75, 0)),
    Part.LineSegment(V(-152.4, -31.75, 0), V(-152.4, 0, 0)),
    Part.LineSegment(V(-152.4, 0, 0), V(0, 0, 0)),
    Part.LineSegment(V(0, 0, 0), V(0, -31.75, 0)),
], False)
sketch6.addConstraint([
    Sketcher.Constraint("Coincident", 0, 2, 1, 1),
    Sketcher.Constraint("Coincident", 1, 2, 2, 1),
    Sketcher.Constraint("Coincident", 2, 2, 3, 1),
    Sketcher.Constraint("Coincident", 3, 2, 0, 1),
    Sketcher.Constraint("Horizontal", 0),
    Sketcher.Constraint("Vertical", 1),
    Sketcher.Constraint("Horizontal", 2),
    Sketcher.Constraint("Vertical", 3),
    Sketcher.Constraint("Coincident", 2, 2, -1, 1),
    Sketcher.Constraint("DistanceX", 0, 2, 0, 1, Q("6 in")),
    Sketcher.Constraint("DistanceY", 1, 1, 1, 2, Q("1.25 in")),
])
sketch6.setExpression("Constraints[9]", "Params.sketch6_width")
sketch6.setExpression("Constraints[10]", "Params.sketch6_height")
pad6 = doc.addObject("PartDesign::Pad", "Pad005")
body.addObject(pad6)
pad6.Profile = sketch6
pad6.setExpression("Length", "Params.pad6_length")
pad6.Reversed = True

# Sketch on an angled plane
sketch7 = doc.addObject("Sketcher::SketchObject", "Sketch006")
body.addObject(sketch7)
sketch7.Placement = App.Placement(V(-127, 1.778, -8.89), App.Rotation(V(0, 0, -1), V(0.707106781, 0.707106781, 0), V(0.707106781, -0.707106781, 0), "ZXY"))
sketch7.addGeometry([
    Part.LineSegment(V(-6.1552, 0, 0), V(20.1252, 0, 0)),
    Part.LineSegment(V(20.1252, 0, 0), V(20.1252, 127, 0)),
    Part.LineSegment(V(20.1252, 127, 0), V(-6.1552, 127, 0)),
    Part.LineSegment(V(-6.1552, 127, 0), V(-6.1552, 0, 0)),
], False)
sketch7.addConstraint([
    Sketcher.Constraint("Coincident", 0, 2, 1, 1),
    Sketcher.Constraint("Coincident", 1, 2, 2, 1),
    Sketcher.Constraint("Coincident", 2, 2, 3, 1),
    Sketcher.Constraint("Coincident", 3, 2, 0, 1),
    Sketcher.Constraint("Horizontal", 0),
    Sketcher.Constraint("Vertical", 1),
    Sketcher.Constraint("Horizontal", 2),
    Sketcher.Constraint("Vertical", 3),
    Sketcher.Constraint("PointOnObject", 0, 2, -1),
    Sketcher.Constraint("DistanceY", 1, 1, 1, 2, Q("5 in")),
    Sketcher.Constraint("DistanceX", 0, 1, 0, 2, 26.2804),
    Sketcher.Constraint("DistanceX", -1, 1, 0, 2, 20.1252),
])
sketch7.setExpression("Constraints[9]", "Params.sketch7_height")
pocket1 = doc.addObject("PartDesign::Pocket", "Pocket")
body.addObject(pocket1)
pocket1.Profile = sketch7
pocket1.setExpression("Length", "Params.pocket1_length")

doc.recompute()
